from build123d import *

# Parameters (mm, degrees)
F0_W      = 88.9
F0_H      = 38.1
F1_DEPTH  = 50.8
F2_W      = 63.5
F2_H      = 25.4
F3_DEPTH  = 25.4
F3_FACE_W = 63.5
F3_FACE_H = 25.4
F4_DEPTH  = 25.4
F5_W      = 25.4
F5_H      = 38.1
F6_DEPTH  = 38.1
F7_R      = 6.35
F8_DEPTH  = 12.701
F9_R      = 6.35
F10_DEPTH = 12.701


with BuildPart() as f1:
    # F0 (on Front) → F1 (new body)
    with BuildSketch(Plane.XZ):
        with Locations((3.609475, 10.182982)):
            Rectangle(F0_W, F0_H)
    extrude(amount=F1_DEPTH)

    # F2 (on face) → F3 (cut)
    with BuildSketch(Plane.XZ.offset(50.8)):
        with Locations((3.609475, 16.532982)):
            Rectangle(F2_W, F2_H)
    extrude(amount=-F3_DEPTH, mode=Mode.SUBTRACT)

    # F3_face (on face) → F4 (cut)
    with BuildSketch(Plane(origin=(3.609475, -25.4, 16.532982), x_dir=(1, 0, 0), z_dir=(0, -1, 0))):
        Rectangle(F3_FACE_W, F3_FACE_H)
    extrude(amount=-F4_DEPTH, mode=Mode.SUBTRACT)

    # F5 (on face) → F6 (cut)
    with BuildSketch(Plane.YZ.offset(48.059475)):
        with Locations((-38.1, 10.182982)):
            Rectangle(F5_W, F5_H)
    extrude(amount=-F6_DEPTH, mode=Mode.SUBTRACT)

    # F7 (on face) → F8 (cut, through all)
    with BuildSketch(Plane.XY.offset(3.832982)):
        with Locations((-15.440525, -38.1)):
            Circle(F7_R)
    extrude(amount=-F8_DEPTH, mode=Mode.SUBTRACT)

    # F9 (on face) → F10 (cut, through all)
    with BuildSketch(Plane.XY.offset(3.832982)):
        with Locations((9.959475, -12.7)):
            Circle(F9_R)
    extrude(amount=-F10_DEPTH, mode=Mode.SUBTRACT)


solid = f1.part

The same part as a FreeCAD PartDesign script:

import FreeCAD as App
import Part
import Sketcher
Q = App.Units.Quantity


def add_polygon(sketch, points):
    """Adds a closed chain of lines whose ends are joined by coincident constraints."""
    first, n = sketch.GeometryCount, len(points)
    for a, b in zip(points, points[1:] + points[:1]):
        sketch.addGeometry(Part.LineSegment(App.Vector(*a, 0), App.Vector(*b, 0)), False)
    for i in range(n):
        sketch.addConstraint(Sketcher.Constraint("Coincident", first + i, 2, first + (i + 1) % n, 1))

doc = App.newDocument("Part")
params = doc.addObject("Spreadsheet::Sheet", "Params")
for row, (alias, value) in enumerate([
    ("sketch1_width", "3.5 in"),
    ("sketch1_height", "1.5 in"),
    ("pad1_length", "2 in"),
    ("sketch2_height", "1 in"),
    ("sketch2_width", "2.5 in"),
    ("pocket1_length", "1 in"),
    ("sketch3_height", "1 in"),
    ("sketch3_width", "2.5 in"),
    ("pocket2_length", "1 in"),
    ("sketch4_width", "1 in"),
    ("sketch4_height", "1.5 in"),
    ("pocket3_length", "1.5 in"),
    ("sketch5_diameter", "0.5 in"),
    ("sketch6_diameter", "0.5 in"),
], start=1):
    params.set(f"A{row}", alias)
    params.set(f"B{row}", "=" + value)
    params.setAlias(f"B{row}", alias)

body = doc.addObject("PartDesign::Body", "Body")

sketch1 = body.newObject("Sketcher::SketchObject", "Sketch")
sketch1.AttachmentSupport = (doc.getObject("XZ_Plane"), [""])
sketch1.MapMode = "FlatFace"
add_polygon(sketch1, [(-40.840525, 29.232982), (-40.840525, -8.867018), (48.059475, -8.867018), (48.059475, 29.232982)])
sketch1.addConstraint([
    Sketcher.Constraint("Vertical", 0),
    Sketcher.Constraint("Horizontal", 1),
    Sketcher.Constraint("Vertical", 2),
    Sketcher.Constraint("Horizontal", 3),
    Sketcher.Constraint("DistanceX", 1, 1, 1, 2, Q("3.5 in")),
    Sketcher.Constraint("DistanceY", 0, 2, 0, 1, Q("1.5 in")),
    Sketcher.Constraint("DistanceY", -1, 1, 2, 2, 29.232982),
    Sketcher.Constraint("DistanceX", 0, 2, -1, 1, 40.840525),
])
sketch1.setExpression("Constraints[8]", "Params.sketch1_width")
sketch1.setExpression("Constraints[9]", "Params.sketch1_height")
pad1 = body.newObject("PartDesign::Pad", "Pad")
pad1.Profile = sketch1
pad1.setExpression("Length", "Params.pad1_length")

sketch2 = body.newObject("Sketcher::SketchObject", "Sketch001")
sketch2.AttachmentSupport = (doc.getObject("XZ_Plane"), [""])
sketch2.MapMode = "FlatFace"
sketch2.AttachmentOffset = App.Placement(App.Vector(0, 0, 2 * 25.4), App.Rotation())
add_polygon(sketch2, [(-28.140525, 29.232982), (-28.140525, 3.832982), (35.359475, 3.832982), (35.359475, 29.232982)])
sketch2.addConstraint([
    Sketcher.Constraint("Vertical", 0),
    Sketcher.Constraint("Horizontal", 1),
    Sketcher.Constraint("Vertical", 2),
    Sketcher.Constraint("Horizontal", 3),
    Sketcher.Constraint("DistanceY", 0, 2, 0, 1, Q("1 in")),
    Sketcher.Constraint("DistanceX", 1, 1, 1, 2, Q("2.5 in")),
    Sketcher.Constraint("DistanceY", -1, 1, 0, 2, 3.832982),
    Sketcher.Constraint("DistanceX", 0, 2, -1, 1, 28.140525),
])
sketch2.setExpression("Constraints[8]", "Params.sketch2_height")
sketch2.setExpression("Constraints[9]", "Params.sketch2_width")
pocket1 = body.newObject("PartDesign::Pocket", "Pocket")
pocket1.Profile = sketch2
pocket1.setExpression("Length", "Params.pocket1_length")

sketch3 = body.newObject("Sketcher::SketchObject", "Sketch002")
sketch3.AttachmentSupport = (doc.getObject("XZ_Plane"), [""])
sketch3.MapMode = "FlatFace"
sketch3.AttachmentOffset = App.Placement(App.Vector(0, 0, 1 * 25.4), App.Rotation())
add_polygon(sketch3, [(-28.140525, 29.232982), (-28.140525, 3.832982), (35.359475, 3.832982), (35.359475, 29.232982)])
sketch3.addConstraint([
    Sketcher.Constraint("Vertical", 0),
    Sketcher.Constraint("Horizontal", 1),
    Sketcher.Constraint("Vertical", 2),
    Sketcher.Constraint("Horizontal", 3),
    Sketcher.Constraint("DistanceY", 0, 2, 0, 1, Q("1 in")),
    Sketcher.Constraint("DistanceX", 1, 1, 1, 2, Q("2.5 in")),
    Sketcher.Constraint("DistanceY", -1, 1, 0, 2, 3.832982),
    Sketcher.Constraint("DistanceX", 0, 2, -1, 1, 28.140525),
])
sketch3.setExpression("Constraints[8]", "Params.sketch3_height")
sketch3.setExpression("Constraints[9]", "Params.sketch3_width")
pocket2 = body.newObject("PartDesign::Pocket", "Pocket001")
pocket2.Profile = sketch3
pocket2.setExpression("Length", "Params.pocket2_length")

sketch4 = body.newObject("Sketcher::SketchObject", "Sketch003")
sketch4.AttachmentSupport = (doc.getObject("YZ_Plane"), [""])
sketch4.MapMode = "FlatFace"
sketch4.AttachmentOffset = App.Placement(App.Vector(0, 0, 48.059475), App.Rotation())
add_polygon(sketch4, [(-50.8, 29.232982), (-50.8, -8.867018), (-25.4, -8.867018), (-25.4, 29.232982)])
sketch4.addConstraint([
    Sketcher.Constraint("Vertical", 0),
    Sketcher.Constraint("Horizontal", 1),
    Sketcher.Constraint("Vertical", 2),
    Sketcher.Constraint("Horizontal", 3),
    Sketcher.Constraint("DistanceX", 1, 1, 1, 2, Q("1 in")),
    Sketcher.Constraint("DistanceY", 0, 2, 0, 1, Q("1.5 in")),
    Sketcher.Constraint("DistanceX", 0, 2, -1, 1, Q("2 in")),
    Sketcher.Constraint("DistanceY", -1, 1, 2, 2, 29.232982),
])
sketch4.setExpression("Constraints[8]", "Params.sketch4_width")
sketch4.setExpression("Constraints[9]", "Params.sketch4_height")
pocket3 = body.newObject("PartDesign::Pocket", "Pocket002")
pocket3.Profile = sketch4
pocket3.setExpression("Length", "Params.pocket3_length")

sketch5 = body.newObject("Sketcher::SketchObject", "Sketch004")
sketch5.AttachmentSupport = (doc.getObject("XY_Plane"), [""])
sketch5.MapMode = "FlatFace"
sketch5.AttachmentOffset = App.Placement(App.Vector(0, 0, 3.832982), App.Rotation())
sketch5.addGeometry(Part.Circle(App.Vector(-15.440525, -38.1, 0), App.Vector(0, 0, 1), 6.35), False)
sketch5.addConstraint([
    Sketcher.Constraint("Diameter", 0, Q("0.5 in")),
    Sketcher.Constraint("DistanceY", 0, 3, -1, 1, Q("1.5 in")),
    Sketcher.Constraint("DistanceX", 0, 3, -1, 1, 15.440525),
])
sketch5.setExpression("Constraints[0]", "Params.sketch5_diameter")
pocket4 = body.newObject("PartDesign::Pocket", "Pocket003")
pocket4.Profile = sketch5
pocket4.Type = "ThroughAll"

sketch6 = body.newObject("Sketcher::SketchObject", "Sketch005")
sketch6.AttachmentSupport = (doc.getObject("XY_Plane"), [""])
sketch6.MapMode = "FlatFace"
sketch6.AttachmentOffset = App.Placement(App.Vector(0, 0, 3.832982), App.Rotation())
sketch6.addGeometry(Part.Circle(App.Vector(9.959475, -12.7, 0), App.Vector(0, 0, 1), 6.35), False)
sketch6.addConstraint([
    Sketcher.Constraint("Diameter", 0, Q("0.5 in")),
    Sketcher.Constraint("DistanceY", 0, 3, -1, 1, Q("0.5 in")),
    Sketcher.Constraint("DistanceX", -1, 1, 0, 3, 9.959475),
])
sketch6.setExpression("Constraints[0]", "Params.sketch6_diameter")
pocket5 = body.newObject("PartDesign::Pocket", "Pocket004")
pocket5.Profile = sketch6
pocket5.Type = "ThroughAll"

doc.recompute()
